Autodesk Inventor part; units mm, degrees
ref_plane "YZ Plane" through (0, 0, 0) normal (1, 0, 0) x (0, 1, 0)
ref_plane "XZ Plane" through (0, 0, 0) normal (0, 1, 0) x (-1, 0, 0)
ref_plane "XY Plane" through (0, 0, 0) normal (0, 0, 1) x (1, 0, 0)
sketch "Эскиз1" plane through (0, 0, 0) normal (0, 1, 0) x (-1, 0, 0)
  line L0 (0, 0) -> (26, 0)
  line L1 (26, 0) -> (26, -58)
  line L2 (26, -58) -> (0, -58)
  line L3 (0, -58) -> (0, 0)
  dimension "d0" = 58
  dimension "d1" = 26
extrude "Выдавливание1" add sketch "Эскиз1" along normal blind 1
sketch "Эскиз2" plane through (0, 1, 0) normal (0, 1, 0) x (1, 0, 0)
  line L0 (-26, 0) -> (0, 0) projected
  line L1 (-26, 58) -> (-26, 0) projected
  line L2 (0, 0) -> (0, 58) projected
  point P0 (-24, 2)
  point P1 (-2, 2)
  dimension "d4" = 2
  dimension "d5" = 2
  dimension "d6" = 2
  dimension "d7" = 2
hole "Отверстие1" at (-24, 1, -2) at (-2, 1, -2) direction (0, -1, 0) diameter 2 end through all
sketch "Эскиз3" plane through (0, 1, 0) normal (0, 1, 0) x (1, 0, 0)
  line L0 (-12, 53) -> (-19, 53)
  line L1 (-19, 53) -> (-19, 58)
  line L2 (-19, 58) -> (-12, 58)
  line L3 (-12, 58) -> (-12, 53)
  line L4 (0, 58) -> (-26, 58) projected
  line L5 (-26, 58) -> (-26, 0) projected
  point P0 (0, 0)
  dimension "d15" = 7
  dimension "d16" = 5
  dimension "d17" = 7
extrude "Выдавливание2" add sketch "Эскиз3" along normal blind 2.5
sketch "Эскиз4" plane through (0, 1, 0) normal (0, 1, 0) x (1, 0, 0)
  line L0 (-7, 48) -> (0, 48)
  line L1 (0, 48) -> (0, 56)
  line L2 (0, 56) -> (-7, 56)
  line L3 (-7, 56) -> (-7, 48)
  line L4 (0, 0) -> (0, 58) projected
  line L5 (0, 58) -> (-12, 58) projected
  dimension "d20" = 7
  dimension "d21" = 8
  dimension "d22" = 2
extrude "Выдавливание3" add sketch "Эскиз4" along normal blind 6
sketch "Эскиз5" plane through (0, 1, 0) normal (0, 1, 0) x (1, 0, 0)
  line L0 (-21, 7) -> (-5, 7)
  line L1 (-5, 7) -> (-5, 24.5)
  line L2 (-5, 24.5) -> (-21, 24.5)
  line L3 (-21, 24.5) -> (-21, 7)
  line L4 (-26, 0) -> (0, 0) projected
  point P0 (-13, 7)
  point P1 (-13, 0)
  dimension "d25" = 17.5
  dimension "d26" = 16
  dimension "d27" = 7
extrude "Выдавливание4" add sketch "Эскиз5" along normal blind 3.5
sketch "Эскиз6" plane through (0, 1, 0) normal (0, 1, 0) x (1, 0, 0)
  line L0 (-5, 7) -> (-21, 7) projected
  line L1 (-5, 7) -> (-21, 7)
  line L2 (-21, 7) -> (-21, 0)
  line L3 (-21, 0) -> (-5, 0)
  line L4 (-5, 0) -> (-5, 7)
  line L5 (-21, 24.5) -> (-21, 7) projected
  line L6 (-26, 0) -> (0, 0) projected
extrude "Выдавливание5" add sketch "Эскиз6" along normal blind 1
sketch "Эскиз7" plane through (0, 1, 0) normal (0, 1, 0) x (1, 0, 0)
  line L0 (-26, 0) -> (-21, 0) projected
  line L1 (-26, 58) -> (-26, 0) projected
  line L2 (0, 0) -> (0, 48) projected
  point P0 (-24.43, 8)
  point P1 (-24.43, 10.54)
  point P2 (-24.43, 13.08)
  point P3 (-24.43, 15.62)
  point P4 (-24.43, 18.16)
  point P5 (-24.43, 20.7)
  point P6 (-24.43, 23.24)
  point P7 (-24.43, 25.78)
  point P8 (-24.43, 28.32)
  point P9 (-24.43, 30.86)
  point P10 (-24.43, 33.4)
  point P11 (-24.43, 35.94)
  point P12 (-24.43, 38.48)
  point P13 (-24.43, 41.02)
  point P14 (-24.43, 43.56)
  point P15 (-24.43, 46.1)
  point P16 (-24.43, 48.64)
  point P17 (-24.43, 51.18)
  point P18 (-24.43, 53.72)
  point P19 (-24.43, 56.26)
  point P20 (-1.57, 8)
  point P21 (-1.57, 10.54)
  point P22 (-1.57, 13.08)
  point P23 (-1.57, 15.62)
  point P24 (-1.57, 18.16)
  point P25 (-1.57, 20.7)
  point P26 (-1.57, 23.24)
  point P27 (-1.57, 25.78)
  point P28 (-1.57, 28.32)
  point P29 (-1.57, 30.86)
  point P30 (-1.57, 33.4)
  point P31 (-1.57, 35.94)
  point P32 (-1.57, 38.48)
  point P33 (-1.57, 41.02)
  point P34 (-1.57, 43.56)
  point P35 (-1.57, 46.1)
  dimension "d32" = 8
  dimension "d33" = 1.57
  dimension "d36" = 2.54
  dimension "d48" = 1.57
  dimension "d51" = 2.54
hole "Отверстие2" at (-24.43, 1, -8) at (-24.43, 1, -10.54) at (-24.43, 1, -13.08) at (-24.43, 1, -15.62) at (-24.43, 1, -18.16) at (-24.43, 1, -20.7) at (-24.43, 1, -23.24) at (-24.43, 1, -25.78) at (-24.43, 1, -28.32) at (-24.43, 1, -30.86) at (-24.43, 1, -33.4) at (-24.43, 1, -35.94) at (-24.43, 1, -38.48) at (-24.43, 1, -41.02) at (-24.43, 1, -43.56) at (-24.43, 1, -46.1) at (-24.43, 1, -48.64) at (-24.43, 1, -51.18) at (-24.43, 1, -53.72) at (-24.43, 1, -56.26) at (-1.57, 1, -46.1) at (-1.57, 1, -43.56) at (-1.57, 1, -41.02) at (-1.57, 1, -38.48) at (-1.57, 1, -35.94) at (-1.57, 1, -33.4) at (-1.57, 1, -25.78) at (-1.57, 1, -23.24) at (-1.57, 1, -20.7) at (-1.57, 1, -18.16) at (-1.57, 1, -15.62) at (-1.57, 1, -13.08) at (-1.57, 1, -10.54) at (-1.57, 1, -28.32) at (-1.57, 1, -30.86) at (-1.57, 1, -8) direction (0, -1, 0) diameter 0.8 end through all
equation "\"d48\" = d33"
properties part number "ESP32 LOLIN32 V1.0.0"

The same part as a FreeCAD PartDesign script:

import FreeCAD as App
import Part
import Sketcher

doc = App.newDocument("Part")
params = doc.addObject("Spreadsheet::Sheet", "Params")
for row, (alias, value) in enumerate([
    ("sketch1_width", "26 mm"),
    ("sketch1_height", "58 mm"),
    ("pad1_length", "1 mm"),
    ("sketch2_diameter", "2 mm"),
    ("hole_diameter", "2 mm"),
    ("sketch3_width", "7 mm"),
    ("sketch3_height", "5 mm"),
    ("pad2_length", "2.5 mm"),
    ("sketch4_width", "7 mm"),
    ("sketch4_height", "8 mm"),
    ("pad3_length", "6 mm"),
    ("sketch5_width", "16 mm"),
    ("sketch5_height", "17.5 mm"),
    ("pad4_length", "3.5 mm"),
    ("sketch6_width", "16 mm"),
    ("sketch6_height", "7 mm"),
    ("pad5_length", "1 mm"),
    ("sketch7_diameter", "0.8 mm"),
    ("hole2_diameter", "0.8 mm"),
], start=1):
    params.set(f"A{row}", alias)
    params.set(f"B{row}", "=" + value)
    params.setAlias(f"B{row}", alias)

body = doc.addObject("PartDesign::Body", "Body")

# Sketch on XZ plane
sketch1 = body.newObject("Sketcher::SketchObject", "Sketch")
sketch1.AttachmentSupport = (doc.getObject("XZ_Plane"), [""])
sketch1.MapMode = "FlatFace"
sketch1.addGeometry(Part.LineSegment(App.Vector(-26, 0, 0), App.Vector(0, 0, 0)), False)
sketch1.addGeometry(Part.LineSegment(App.Vector(0, 0, 0), App.Vector(0, -58, 0)), False)
sketch1.addGeometry(Part.LineSegment(App.Vector(0, -58, 0), App.Vector(-26, -58, 0)), False)
sketch1.addGeometry(Part.LineSegment(App.Vector(-26, -58, 0), App.Vector(-26, 0, 0)), False)
sketch1.addConstraint(Sketcher.Constraint("Coincident", 0, 2, 1, 1))
sketch1.addConstraint(Sketcher.Constraint("Coincident", 1, 2, 2, 1))
sketch1.addConstraint(Sketcher.Constraint("Coincident", 2, 2, 3, 1))
sketch1.addConstraint(Sketcher.Constraint("Coincident", 3, 2, 0, 1))
sketch1.addConstraint(Sketcher.Constraint("Horizontal", 0))
sketch1.addConstraint(Sketcher.Constraint("Vertical", 1))
sketch1.addConstraint(Sketcher.Constraint("Horizontal", 2))
sketch1.addConstraint(Sketcher.Constraint("Vertical", 3))
sketch1.addConstraint(Sketcher.Constraint("Coincident", 0, 2, -1, 1))
sketch1.addConstraint(Sketcher.Constraint("DistanceX", 0, 1, 0, 2, 26.0))
sketch1.addConstraint(Sketcher.Constraint("DistanceY", 1, 2, 1, 1, 58.0))
sketch1.setExpression("Constraints[9]", "Params.sketch1_width")
sketch1.setExpression("Constraints[10]", "Params.sketch1_height")
pad1 = body.newObject("PartDesign::Pad", "Pad")
pad1.Profile = sketch1
pad1.setExpression("Length", "Params.pad1_length")
pad1.Reversed = True

# Sketch on XZ plane
sketch2 = body.newObject("Sketcher::SketchObject", "Sketch001")
sketch2.AttachmentSupport = (doc.getObject("XZ_Plane"), [""])
sketch2.MapMode = "FlatFace"
sketch2.AttachmentOffset = App.Placement(App.Vector(0, 0, -1), App.Rotation())
sketch2.addGeometry(Part.Circle(App.Vector(-24, -2, 0), App.Vector(0, 0, 1), 1), False)
sketch2.addGeometry(Part.Circle(App.Vector(-2, -2, 0), App.Vector(0, 0, 1), 1), False)
sketch2.addConstraint(Sketcher.Constraint("Equal", 0, 1))
sketch2.addConstraint(Sketcher.Constraint("Horizontal", 0, 3, 1, 3))
sketch2.addConstraint(Sketcher.Constraint("Diameter", 0, 2.0))
sketch2.addConstraint(Sketcher.Constraint("DistanceX", 0, 3, -1, 1, 24.0))
sketch2.addConstraint(Sketcher.Constraint("DistanceY", 0, 3, -1, 1, 2.0))
sketch2.addConstraint(Sketcher.Constraint("DistanceX", 1, 3, -1, 1, 2.0))
sketch2.setExpression("Constraints[2]", "Params.sketch2_diameter")
doc.recompute()
hole = body.newObject("PartDesign::Hole", "Hole")
hole.Profile = sketch2
hole.ThreadType = "None"
hole.setExpression("Diameter", "Params.hole_diameter")
hole.DepthType = "ThroughAll"
hole.Reversed = True

# Sketch on XZ plane
sketch3 = body.newObject("Sketcher::SketchObject", "Sketch002")
sketch3.AttachmentSupport = (doc.getObject("XZ_Plane"), [""])
sketch3.MapMode = "FlatFace"
sketch3.AttachmentOffset = App.Placement(App.Vector(0, 0, -1), App.Rotation())
sketch3.addGeometry(Part.LineSegment(App.Vector(-19, -53, 0), App.Vector(-12, -53, 0)), False)
sketch3.addGeometry(Part.LineSegment(App.Vector(-12, -53, 0), App.Vector(-12, -58, 0)), False)
sketch3.addGeometry(Part.LineSegment(App.Vector(-12, -58, 0), App.Vector(-19, -58, 0)), False)
sketch3.addGeometry(Part.LineSegment(App.Vector(-19, -58, 0), App.Vector(-19, -53, 0)), False)
sketch3.addConstraint(Sketcher.Constraint("Coincident", 0, 2, 1, 1))
sketch3.addConstraint(Sketcher.Constraint("Coincident", 1, 2, 2, 1))
sketch3.addConstraint(Sketcher.Constraint("Coincident", 2, 2, 3, 1))
sketch3.addConstraint(Sketcher.Constraint("Coincident", 3, 2, 0, 1))
sketch3.addConstraint(Sketcher.Constraint("Horizontal", 0))
sketch3.addConstraint(Sketcher.Constraint("Vertical", 1))
sketch3.addConstraint(Sketcher.Constraint("Horizontal", 2))
sketch3.addConstraint(Sketcher.Constraint("Vertical", 3))
sketch3.addConstraint(Sketcher.Constraint("DistanceX", 0, 1, 0, 2, 7.0))
sketch3.addConstraint(Sketcher.Constraint("DistanceY", 1, 2, 1, 1, 5.0))
sketch3.addConstraint(Sketcher.Constraint("DistanceX", 0, 2, -1, 1, 12.0))
sketch3.addConstraint(Sketcher.Constraint("DistanceY", 0, 2, -1, 1, 53.0))
sketch3.setExpression("Constraints[8]", "Params.sketch3_width")
sketch3.setExpression("Constraints[9]", "Params.sketch3_height")
pad2 = body.newObject("PartDesign::Pad", "Pad001")
pad2.Profile = sketch3
pad2.setExpression("Length", "Params.pad2_length")
pad2.Reversed = True

# Sketch on XZ plane
sketch4 = body.newObject("Sketcher::SketchObject", "Sketch003")
sketch4.AttachmentSupport = (doc.getObject("XZ_Plane"), [""])
sketch4.MapMode = "FlatFace"
sketch4.AttachmentOffset = App.Placement(App.Vector(0, 0, -1), App.Rotation())
sketch4.addGeometry(Part.LineSegment(App.Vector(-7, -56, 0), App.Vector(-7, -48, 0)), False)
sketch4.addGeometry(Part.LineSegment(App.Vector(-7, -48, 0), App.Vector(0, -48, 0)), False)
sketch4.addGeometry(Part.LineSegment(App.Vector(0, -48, 0), App.Vector(0, -56, 0)), False)
sketch4.addGeometry(Part.LineSegment(App.Vector(0, -56, 0), App.Vector(-7, -56, 0)), False)
sketch4.addConstraint(Sketcher.Constraint("Coincident", 0, 2, 1, 1))
sketch4.addConstraint(Sketcher.Constraint("Coincident", 1, 2, 2, 1))
sketch4.addConstraint(Sketcher.Constraint("Coincident", 2, 2, 3, 1))
sketch4.addConstraint(Sketcher.Constraint("Coincident", 3, 2, 0, 1))
sketch4.addConstraint(Sketcher.Constraint("Vertical", 0))
sketch4.addConstraint(Sketcher.Constraint("Horizontal", 1))
sketch4.addConstraint(Sketcher.Constraint("Vertical", 2))
sketch4.addConstraint(Sketcher.Constraint("Horizontal", 3))
sketch4.addConstraint(Sketcher.Constraint("PointOnObject", 1, 2, -2))
sketch4.addConstraint(Sketcher.Constraint("DistanceX", 1, 1, 1, 2, 7.0))
sketch4.addConstraint(Sketcher.Constraint("DistanceY", 0, 1, 0, 2, 8.0))
sketch4.addConstraint(Sketcher.Constraint("DistanceY", 0, 2, -1, 1, 48.0))
sketch4.setExpression("Constraints[9]", "Params.sketch4_width")
sketch4.setExpression("Constraints[10]", "Params.sketch4_height")
pad3 = body.newObject("PartDesign::Pad", "Pad002")
pad3.Profile = sketch4
pad3.setExpression("Length", "Params.pad3_length")
pad3.Reversed = True

# Sketch on XZ plane
sketch5 = body.newObject("Sketcher::SketchObject", "Sketch004")
sketch5.AttachmentSupport = (doc.getObject("XZ_Plane"), [""])
sketch5.MapMode = "FlatFace"
sketch5.AttachmentOffset = App.Placement(App.Vector(0, 0, -1), App.Rotation())
sketch5.addGeometry(Part.LineSegment(App.Vector(-21, -24, 0), App.Vector(-21, -7, 0)), False)
sketch5.addGeometry(Part.LineSegment(App.Vector(-21, -7, 0), App.Vector(-5, -7, 0)), False)
sketch5.addGeometry(Part.LineSegment(App.Vector(-5, -7, 0), App.Vector(-5, -24, 0)), False)
sketch5.addGeometry(Part.LineSegment(App.Vector(-5, -24, 0), App.Vector(-21, -24, 0)), False)
sketch5.addConstraint(Sketcher.Constraint("Coincident", 0, 2, 1, 1))
sketch5.addConstraint(Sketcher.Constraint("Coincident", 1, 2, 2, 1))
sketch5.addConstraint(Sketcher.Constraint("Coincident", 2, 2, 3, 1))
sketch5.addConstraint(Sketcher.Constraint("Coincident", 3, 2, 0, 1))
sketch5.addConstraint(Sketcher.Constraint("Vertical", 0))
sketch5.addConstraint(Sketcher.Constraint("Horizontal", 1))
sketch5.addConstraint(Sketcher.Constraint("Vertical", 2))
sketch5.addConstraint(Sketcher.Constraint("Horizontal", 3))
sketch5.addConstraint(Sketcher.Constraint("DistanceX", 1, 1, 1, 2, 16.0))
sketch5.addConstraint(Sketcher.Constraint("DistanceY", 0, 1, 0, 2, 17.5))
sketch5.addConstraint(Sketcher.Constraint("DistanceY", 0, 2, -1, 1, 7.0))
sketch5.addConstraint(Sketcher.Constraint("DistanceX", 0, 2, -1, 1, 21.0))
sketch5.setExpression("Constraints[8]", "Params.sketch5_width")
sketch5.setExpression("Constraints[9]", "Params.sketch5_height")
pad4 = body.newObject("PartDesign::Pad", "Pad003")
pad4.Profile = sketch5
pad4.setExpression("Length", "Params.pad4_length")
pad4.Reversed = True

# Sketch on XZ plane
sketch6 = body.newObject("Sketcher::SketchObject", "Sketch005")
sketch6.AttachmentSupport = (doc.getObject("XZ_Plane"), [""])
sketch6.MapMode = "FlatFace"
sketch6.AttachmentOffset = App.Placement(App.Vector(0, 0, -1), App.Rotation())
sketch6.addGeometry(Part.LineSegment(App.Vector(-5, 0, 0), App.Vector(-5, -7, 0)), False)
sketch6.addGeometry(Part.LineSegment(App.Vector(-5, -7, 0), App.Vector(-21, -7, 0)), False)
sketch6.addGeometry(Part.LineSegment(App.Vector(-21, -7, 0), App.Vector(-21, 0, 0)), False)
sketch6.addGeometry(Part.LineSegment(App.Vector(-21, 0, 0), App.Vector(-5, 0, 0)), False)
sketch6.addConstraint(Sketcher.Constraint("Coincident", 0, 2, 1, 1))
sketch6.addConstraint(Sketcher.Constraint("Coincident", 1, 2, 2, 1))
sketch6.addConstraint(Sketcher.Constraint("Coincident", 2, 2, 3, 1))
sketch6.addConstraint(Sketcher.Constraint("Coincident", 3, 2, 0, 1))
sketch6.addConstraint(Sketcher.Constraint("Vertical", 0))
sketch6.addConstraint(Sketcher.Constraint("Horizontal", 1))
sketch6.addConstraint(Sketcher.Constraint("Vertical", 2))
sketch6.addConstraint(Sketcher.Constraint("Horizontal", 3))
sketch6.addConstraint(Sketcher.Constraint("PointOnObject", 2, 2, -1))
sketch6.addConstraint(Sketcher.Constraint("DistanceX", 1, 2, 1, 1, 16.0))
sketch6.addConstraint(Sketcher.Constraint("DistanceY", 0, 2, 0, 1, 7.0))
sketch6.addConstraint(Sketcher.Constraint("DistanceX", 0, 2, -1, 1, 5.0))
sketch6.setExpression("Constraints[9]", "Params.sketch6_width")
sketch6.setExpression("Constraints[10]", "Params.sketch6_height")
pad5 = body.newObject("PartDesign::Pad", "Pad004")
pad5.Profile = sketch6
pad5.setExpression("Length", "Params.pad5_length")
pad5.Reversed = True

# Sketch on XZ plane
sketch7 = body.newObject("Sketcher::SketchObject", "Sketch006")
sketch7.AttachmentSupport = (doc.getObject("XZ_Plane"), [""])
sketch7.MapMode = "FlatFace"
sketch7.AttachmentOffset = App.Placement(App.Vector(0, 0, -1), App.Rotation())
sketch7.addGeometry(Part.Circle(App.Vector(-24.43, -8, 0), App.Vector(0, 0, 1), 0.4), False)
sketch7.addGeometry(Part.Circle(App.Vector(-24.43, -10.54, 0), App.Vector(0, 0, 1), 0.4), False)
sketch7.addGeometry(Part.Circle(App.Vector(-24.43, -13.08, 0), App.Vector(0, 0, 1), 0.4), False)
sketch7.addGeometry(Part.Circle(App.Vector(-24.43, -15.62, 0), App.Vector(0, 0, 1), 0.4), False)
sketch7.addGeometry(Part.Circle(App.Vector(-24.43, -18.16, 0), App.Vector(0, 0, 1), 0.4), False)
sketch7.addGeometry(Part.Circle(App.Vector(-24.43, -20.7, 0), App.Vector(0, 0, 1), 0.4), False)
sketch7.addGeometry(Part.Circle(App.Vector(-24.43, -23.24, 0), App.Vector(0, 0, 1), 0.4), False)
sketch7.addGeometry(Part.Circle(App.Vector(-24.43, -25.78, 0), App.Vector(0, 0, 1), 0.4), False)
sketch7.addGeometry(Part.Circle(App.Vector(-24.43, -28.32, 0), App.Vector(0, 0, 1), 0.4), False)
sketch7.addGeometry(Part.Circle(App.Vector(-24.43, -30.86, 0), App.Vector(0, 0, 1), 0.4), False)
sketch7.addGeometry(Part.Circle(App.Vector(-24.43, -33.4, 0), App.Vector(0, 0, 1), 0.4), False)
sketch7.addGeometry(Part.Circle(App.Vector(-24.43, -35.94, 0), App.Vector(0, 0, 1), 0.4), False)
sketch7.addGeometry(Part.Circle(App.Vector(-24.43, -38.48, 0), App.Vector(0, 0, 1), 0.4), False)
sketch7.addGeometry(Part.Circle(App.Vector(-24.43, -41.02, 0), App.Vector(0, 0, 1), 0.4), False)
sketch7.addGeometry(Part.Circle(App.Vector(-24.43, -43.56, 0), App.Vector(0, 0, 1), 0.4), False)
sketch7.addGeometry(Part.Circle(App.Vector(-24.43, -46.1, 0), App.Vector(0, 0, 1), 0.4), False)
sketch7.addGeometry(Part.Circle(App.Vector(-24.43, -48.64, 0), App.Vector(0, 0, 1), 0.4), False)
sketch7.addGeometry(Part.Circle(App.Vector(-24.43, -51.18, 0), App.Vector(0, 0, 1), 0.4), False)
sketch7.addGeometry(Part.Circle(App.Vector(-24.43, -53.72, 0), App.Vector(0, 0, 1), 0.4), False)
sketch7.addGeometry(Part.Circle(App.Vector(-24.43, -56.26, 0), App.Vector(0, 0, 1), 0.4), False)
sketch7.addGeometry(Part.Circle(App.Vector(-1.57, -46.1, 0), App.Vector(0, 0, 1), 0.4), False)
sketch7.addGeometry(Part.Circle(App.Vector(-1.57, -43.56, 0), App.Vector(0, 0, 1), 0.4), False)
sketch7.addGeometry(Part.Circle(App.Vector(-1.57, -41.02, 0), App.Vector(0, 0, 1), 0.4), False)
sketch7.addGeometry(Part.Circle(App.Vector(-1.57, -38.48, 0), App.Vector(0, 0, 1), 0.4), False)
sketch7.addGeometry(Part.Circle(App.Vector(-1.57, -35.94, 0), App.Vector(0, 0, 1), 0.4), False)
sketch7.addGeometry(Part.Circle(App.Vector(-1.57, -33.4, 0), App.Vector(0, 0, 1), 0.4), False)
sketch7.addGeometry(Part.Circle(App.Vector(-1.57, -25.78, 0), App.Vector(0, 0, 1), 0.4), False)
sketch7.addGeometry(Part.Circle(App.Vector(-1.57, -23.24, 0), App.Vector(0, 0, 1), 0.4), False)
sketch7.addGeometry(Part.Circle(App.Vector(-1.57, -20.7, 0), App.Vector(0, 0, 1), 0.4), False)
sketch7.addGeometry(Part.Circle(App.Vector(-1.57, -18.16, 0), App.Vector(0, 0, 1), 0.4), False)
sketch7.addGeometry(Part.Circle(App.Vector(-1.57, -15.62, 0), App.Vector(0, 0, 1), 0.4), False)
sketch7.addGeometry(Part.Circle(App.Vector(-1.57, -13.08, 0), App.Vector(0, 0, 1), 0.4), False)
sketch7.addGeometry(Part.Circle(App.Vector(-1.57, -10.54, 0), App.Vector(0, 0, 1), 0.4), False)
sketch7.addGeometry(Part.Circle(App.Vector(-1.57, -28.32, 0), App.Vector(0, 0, 1), 0.4), False)
sketch7.addGeometry(Part.Circle(App.Vector(-1.57, -30.86, 0), App.Vector(0, 0, 1), 0.4), False)
sketch7.addGeometry(Part.Circle(App.Vector(-1.57, -8, 0), App.Vector(0, 0, 1), 0.4), False)
sketch7.addConstraint(Sketcher.Constraint("Equal", 0, 1))
sketch7.addConstraint(Sketcher.Constraint("Equal", 1, 2))
sketch7.addConstraint(Sketcher.Constraint("Equal", 2, 3))
sketch7.addConstraint(Sketcher.Constraint("Equal", 3, 4))
sketch7.addConstraint(Sketcher.Constraint("Equal", 4, 5))
sketch7.addConstraint(Sketcher.Constraint("Equal", 5, 6))
sketch7.addConstraint(Sketcher.Constraint("Equal", 6, 7))
sketch7.addConstraint(Sketcher.Constraint("Equal", 7, 8))
sketch7.addConstraint(Sketcher.Constraint("Equal", 8, 9))
sketch7.addConstraint(Sketcher.Constraint("Equal", 9, 10))
sketch7.addConstraint(Sketcher.Constraint("Equal", 10, 11))
sketch7.addConstraint(Sketcher.Constraint("Equal", 11, 12))
sketch7.addConstraint(Sketcher.Constraint("Equal", 12, 13))
sketch7.addConstraint(Sketcher.Constraint("Equal", 13, 14))
sketch7.addConstraint(Sketcher.Constraint("Equal", 14, 15))
sketch7.addConstraint(Sketcher.Constraint("Equal", 15, 16))
sketch7.addConstraint(Sketcher.Constraint("Equal", 16, 17))
sketch7.addConstraint(Sketcher.Constraint("Equal", 17, 18))
sketch7.addConstraint(Sketcher.Constraint("Equal", 18, 19))
sketch7.addConstraint(Sketcher.Constraint("Equal", 19, 20))
sketch7.addConstraint(Sketcher.Constraint("Equal", 20, 21))
sketch7.addConstraint(Sketcher.Constraint("Equal", 21, 22))
sketch7.addConstraint(Sketcher.Constraint("Equal", 22, 23))
sketch7.addConstraint(Sketcher.Constraint("Equal", 23, 24))
sketch7.addConstraint(Sketcher.Constraint("Equal", 24, 25))
sketch7.addConstraint(Sketcher.Constraint("Equal", 25, 26))
sketch7.addConstraint(Sketcher.Constraint("Equal", 26, 27))
sketch7.addConstraint(Sketcher.Constraint("Equal", 27, 28))
sketch7.addConstraint(Sketcher.Constraint("Equal", 28, 29))
sketch7.addConstraint(Sketcher.Constraint("Equal", 29, 30))
sketch7.addConstraint(Sketcher.Constraint("Equal", 30, 31))
sketch7.addConstraint(Sketcher.Constraint("Equal", 31, 32))
sketch7.addConstraint(Sketcher.Constraint("Equal", 32, 33))
sketch7.addConstraint(Sketcher.Constraint("Equal", 33, 34))
sketch7.addConstraint(Sketcher.Constraint("Equal", 34, 35))
sketch7.addConstraint(Sketcher.Constraint("Horizontal", 15, 3, 20, 3))
sketch7.addConstraint(Sketcher.Constraint("Horizontal", 14, 3, 21, 3))
sketch7.addConstraint(Sketcher.Constraint("Horizontal", 13, 3, 22, 3))
sketch7.addConstraint(Sketcher.Constraint("Horizontal", 12, 3, 23, 3))
sketch7.addConstraint(Sketcher.Constraint("Horizontal", 11, 3, 24, 3))
sketch7.addConstraint(Sketcher.Constraint("Horizontal", 10, 3, 25, 3))
sketch7.addConstraint(Sketcher.Constraint("Horizontal", 7, 3, 26, 3))
sketch7.addConstraint(Sketcher.Constraint("Horizontal", 6, 3, 27, 3))
sketch7.addConstraint(Sketcher.Constraint("Horizontal", 5, 3, 28, 3))
sketch7.addConstraint(Sketcher.Constraint("Horizontal", 4, 3, 29, 3))
sketch7.addConstraint(Sketcher.Constraint("Horizontal", 3, 3, 30, 3))
sketch7.addConstraint(Sketcher.Constraint("Horizontal", 2, 3, 31, 3))
sketch7.addConstraint(Sketcher.Constraint("Horizontal", 1, 3, 32, 3))
sketch7.addConstraint(Sketcher.Constraint("Horizontal", 8, 3, 33, 3))
sketch7.addConstraint(Sketcher.Constraint("Horizontal", 9, 3, 34, 3))
sketch7.addConstraint(Sketcher.Constraint("Horizontal", 0, 3, 35, 3))
sketch7.addConstraint(Sketcher.Constraint("Vertical", 0, 3, 1, 3))
sketch7.addConstraint(Sketcher.Constraint("Vertical", 1, 3, 2, 3))
sketch7.addConstraint(Sketcher.Constraint("Vertical", 2, 3, 3, 3))
sketch7.addConstraint(Sketcher.Constraint("Vertical", 3, 3, 4, 3))
sketch7.addConstraint(Sketcher.Constraint("Vertical", 4, 3, 5, 3))
sketch7.addConstraint(Sketcher.Constraint("Vertical", 5, 3, 6, 3))
sketch7.addConstraint(Sketcher.Constraint("Vertical", 6, 3, 7, 3))
sketch7.addConstraint(Sketcher.Constraint("Vertical", 7, 3, 8, 3))
sketch7.addConstraint(Sketcher.Constraint("Vertical", 8, 3, 9, 3))
sketch7.addConstraint(Sketcher.Constraint("Vertical", 9, 3, 10, 3))
sketch7.addConstraint(Sketcher.Constraint("Vertical", 10, 3, 11, 3))
sketch7.addConstraint(Sketcher.Constraint("Vertical", 11, 3, 12, 3))
sketch7.addConstraint(Sketcher.Constraint("Vertical", 12, 3, 13, 3))
sketch7.addConstraint(Sketcher.Constraint("Vertical", 13, 3, 14, 3))
sketch7.addConstraint(Sketcher.Constraint("Vertical", 14, 3, 15, 3))
sketch7.addConstraint(Sketcher.Constraint("Vertical", 15, 3, 16, 3))
sketch7.addConstraint(Sketcher.Constraint("Vertical", 16, 3, 17, 3))
sketch7.addConstraint(Sketcher.Constraint("Vertical", 17, 3, 18, 3))
sketch7.addConstraint(Sketcher.Constraint("Vertical", 18, 3, 19, 3))
sketch7.addConstraint(Sketcher.Constraint("Vertical", 20, 3, 21, 3))
sketch7.addConstraint(Sketcher.Constraint("Vertical", 21, 3, 22, 3))
sketch7.addConstraint(Sketcher.Constraint("Vertical", 22, 3, 23, 3))
sketch7.addConstraint(Sketcher.Constraint("Vertical", 23, 3, 24, 3))
sketch7.addConstraint(Sketcher.Constraint("Vertical", 24, 3, 25, 3))
sketch7.addConstraint(Sketcher.Constraint("Vertical", 25, 3, 26, 3))
sketch7.addConstraint(Sketcher.Constraint("Vertical", 26, 3, 27, 3))
sketch7.addConstraint(Sketcher.Constraint("Vertical", 27, 3, 28, 3))
sketch7.addConstraint(Sketcher.Constraint("Vertical", 28, 3, 29, 3))
sketch7.addConstraint(Sketcher.Constraint("Vertical", 29, 3, 30, 3))
sketch7.addConstraint(Sketcher.Constraint("Vertical", 30, 3, 31, 3))
sketch7.addConstraint(Sketcher.Constraint("Vertical", 31, 3, 32, 3))
sketch7.addConstraint(Sketcher.Constraint("Vertical", 32, 3, 33, 3))
sketch7.addConstraint(Sketcher.Constraint("Vertical", 33, 3, 34, 3))
sketch7.addConstraint(Sketcher.Constraint("Vertical", 34, 3, 35, 3))
sketch7.addConstraint(Sketcher.Constraint("Diameter", 0, 0.8))
sketch7.addConstraint(Sketcher.Constraint("DistanceY", 0, 3, -1, 1, 8.0))
sketch7.addConstraint(Sketcher.Constraint("DistanceY", 5, 3, -1, 1, 20.7))
sketch7.addConstraint(Sketcher.Constraint("DistanceY", 10, 3, -1, 1, 33.4))
sketch7.addConstraint(Sketcher.Constraint("DistanceY", 15, 3, -1, 1, 46.1))
sketch7.addConstraint(Sketcher.Constraint("DistanceY", 6, 3, 1, 3, 12.7))
sketch7.addConstraint(Sketcher.Constraint("DistanceY", 7, 3, 2, 3, 12.7))
sketch7.addConstraint(Sketcher.Constraint("DistanceY", 8, 3, 3, 3, 12.7))
sketch7.addConstraint(Sketcher.Constraint("DistanceY", 9, 3, 4, 3, 12.7))
sketch7.addConstraint(Sketcher.Constraint("DistanceY", 11, 3, 6, 3, 12.7))
sketch7.addConstraint(Sketcher.Constraint("DistanceY", 12, 3, 7, 3, 12.7))
sketch7.addConstraint(Sketcher.Constraint("DistanceY", 13, 3, 8, 3, 12.7))
sketch7.addConstraint(Sketcher.Constraint("DistanceY", 14, 3, 9, 3, 12.7))
sketch7.addConstraint(Sketcher.Constraint("DistanceY", 16, 3, 11, 3, 12.7))
sketch7.addConstraint(Sketcher.Constraint("DistanceY", 17, 3, 12, 3, 12.7))
sketch7.addConstraint(Sketcher.Constraint("DistanceY", 18, 3, 13, 3, 12.7))
sketch7.addConstraint(Sketcher.Constraint("DistanceY", 19, 3, 14, 3, 12.7))
sketch7.addConstraint(Sketcher.Constraint("DistanceX", 0, 3, -1, 1, 24.43))
sketch7.addConstraint(Sketcher.Constraint("DistanceY", 1, 3, -1, 1, 10.54))
sketch7.addConstraint(Sketcher.Constraint("DistanceY", 2, 3, -1, 1, 13.08))
sketch7.addConstraint(Sketcher.Constraint("DistanceY", 3, 3, -1, 1, 15.62))
sketch7.addConstraint(Sketcher.Constraint("DistanceY", 4, 3, -1, 1, 18.16))
sketch7.addConstraint(Sketcher.Constraint("DistanceX", 20, 3, -1, 1, 1.57))
sketch7.setExpression("Constraints[85]", "Params.sketch7_diameter")
doc.recompute()
hole2 = body.newObject("PartDesign::Hole", "Hole001")
hole2.Profile = sketch7
hole2.ThreadType = "None"
hole2.setExpression("Diameter", "Params.hole2_diameter")
hole2.DepthType = "ThroughAll"
hole2.Reversed = True

doc.recompute()
